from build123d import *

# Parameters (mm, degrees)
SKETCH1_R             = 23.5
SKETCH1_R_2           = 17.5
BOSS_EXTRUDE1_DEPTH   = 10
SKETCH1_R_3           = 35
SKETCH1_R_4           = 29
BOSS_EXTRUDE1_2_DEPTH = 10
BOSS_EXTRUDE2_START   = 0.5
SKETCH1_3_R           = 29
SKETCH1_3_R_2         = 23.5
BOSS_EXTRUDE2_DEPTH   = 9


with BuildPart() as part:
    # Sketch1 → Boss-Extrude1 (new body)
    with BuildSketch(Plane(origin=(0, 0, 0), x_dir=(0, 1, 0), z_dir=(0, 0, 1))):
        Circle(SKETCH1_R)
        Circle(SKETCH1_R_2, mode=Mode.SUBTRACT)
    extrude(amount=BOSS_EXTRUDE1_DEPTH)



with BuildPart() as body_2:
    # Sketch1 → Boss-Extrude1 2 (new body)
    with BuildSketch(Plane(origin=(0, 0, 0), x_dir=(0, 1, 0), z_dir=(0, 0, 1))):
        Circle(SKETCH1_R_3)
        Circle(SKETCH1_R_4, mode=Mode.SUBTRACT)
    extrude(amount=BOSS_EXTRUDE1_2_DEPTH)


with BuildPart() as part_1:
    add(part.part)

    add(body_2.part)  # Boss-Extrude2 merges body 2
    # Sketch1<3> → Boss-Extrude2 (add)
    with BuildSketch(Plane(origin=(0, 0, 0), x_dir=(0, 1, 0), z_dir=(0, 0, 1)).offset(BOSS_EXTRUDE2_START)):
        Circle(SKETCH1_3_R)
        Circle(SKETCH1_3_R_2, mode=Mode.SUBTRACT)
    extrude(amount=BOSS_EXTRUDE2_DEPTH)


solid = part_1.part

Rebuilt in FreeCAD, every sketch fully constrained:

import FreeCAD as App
import Part
import Sketcher

V = App.Vector
Q = App.Units.Quantity

doc = App.newDocument("Part")
body = doc.addObject("PartDesign::Body", "Body")

sketch1 = body.newObject("Sketcher::SketchObject", "Sketch")
sketch1.AttachmentSupport = (doc.getObject("XY_Plane"), [""])
sketch1.MapMode = "FlatFace"
sketch1.addGeometry([
    Part.Circle(V(0, 0, 0), V(0, 0, 1), 23.5),
    Part.Circle(V(0, 0, 0), V(0, 0, 1), 17.5),
], False)
sketch1.addConstraint([
    Sketcher.Constraint("Coincident", 0, 3, -1, 1),
    Sketcher.Constraint("Coincident", 1, 3, -1, 1),
    Sketcher.Constraint("Diameter", 0, Q("47 mm")),
    Sketcher.Constraint("Diameter", 1, Q("35 mm")),
])
pad1 = body.newObject("PartDesign::Pad", "Pad")
pad1.Profile = sketch1
pad1.Length = 10
body2 = doc.addObject("PartDesign::Body", "Body001")

sketch2 = body2.newObject("Sketcher::SketchObject", "Sketch001")
sketch2.AttachmentSupport = (doc.getObject("XY_Plane001"), [""])
sketch2.MapMode = "FlatFace"
sketch2.addGeometry([
    Part.Circle(V(0, 0, 0), V(0, 0, 1), 35),
    Part.Circle(V(0, 0, 0), V(0, 0, 1), 29),
], False)
sketch2.addConstraint([
    Sketcher.Constraint("Coincident", 0, 3, -1, 1),
    Sketcher.Constraint("Coincident", 1, 3, -1, 1),
    Sketcher.Constraint("Diameter", 0, Q("70 mm")),
    Sketcher.Constraint("Diameter", 1, Q("58 mm")),
])
pad2 = body2.newObject("PartDesign::Pad", "Pad001")
pad2.Profile = sketch2
pad2.Length = 10
body.AllowCompound = True
doc.recompute()

boolean = body.newObject("PartDesign::Boolean", "Boolean")
boolean.Type = "Fuse"
boolean.addObjects([body2])

sketch3 = body.newObject("Sketcher::SketchObject", "Sketch002")
sketch3.AttachmentSupport = (doc.getObject("XY_Plane"), [""])
sketch3.MapMode = "FlatFace"
sketch3.AttachmentOffset = App.Placement(V(0, 0, 0.5), App.Rotation())
sketch3.addGeometry([
    Part.Circle(V(0, 0, 0), V(0, 0, 1), 29),
    Part.Circle(V(0, 0, 0), V(0, 0, 1), 23.5),
], False)
sketch3.addConstraint([
    Sketcher.Constraint("Coincident", 0, 3, -1, 1),
    Sketcher.Constraint("Coincident", 1, 3, -1, 1),
    Sketcher.Constraint("Diameter", 0, Q("58 mm")),
    Sketcher.Constraint("Diameter", 1, Q("47 mm")),
])
pad3 = body.newObject("PartDesign::Pad", "Pad002")
pad3.Profile = sketch3
pad3.Length = 9

doc.recompute()
